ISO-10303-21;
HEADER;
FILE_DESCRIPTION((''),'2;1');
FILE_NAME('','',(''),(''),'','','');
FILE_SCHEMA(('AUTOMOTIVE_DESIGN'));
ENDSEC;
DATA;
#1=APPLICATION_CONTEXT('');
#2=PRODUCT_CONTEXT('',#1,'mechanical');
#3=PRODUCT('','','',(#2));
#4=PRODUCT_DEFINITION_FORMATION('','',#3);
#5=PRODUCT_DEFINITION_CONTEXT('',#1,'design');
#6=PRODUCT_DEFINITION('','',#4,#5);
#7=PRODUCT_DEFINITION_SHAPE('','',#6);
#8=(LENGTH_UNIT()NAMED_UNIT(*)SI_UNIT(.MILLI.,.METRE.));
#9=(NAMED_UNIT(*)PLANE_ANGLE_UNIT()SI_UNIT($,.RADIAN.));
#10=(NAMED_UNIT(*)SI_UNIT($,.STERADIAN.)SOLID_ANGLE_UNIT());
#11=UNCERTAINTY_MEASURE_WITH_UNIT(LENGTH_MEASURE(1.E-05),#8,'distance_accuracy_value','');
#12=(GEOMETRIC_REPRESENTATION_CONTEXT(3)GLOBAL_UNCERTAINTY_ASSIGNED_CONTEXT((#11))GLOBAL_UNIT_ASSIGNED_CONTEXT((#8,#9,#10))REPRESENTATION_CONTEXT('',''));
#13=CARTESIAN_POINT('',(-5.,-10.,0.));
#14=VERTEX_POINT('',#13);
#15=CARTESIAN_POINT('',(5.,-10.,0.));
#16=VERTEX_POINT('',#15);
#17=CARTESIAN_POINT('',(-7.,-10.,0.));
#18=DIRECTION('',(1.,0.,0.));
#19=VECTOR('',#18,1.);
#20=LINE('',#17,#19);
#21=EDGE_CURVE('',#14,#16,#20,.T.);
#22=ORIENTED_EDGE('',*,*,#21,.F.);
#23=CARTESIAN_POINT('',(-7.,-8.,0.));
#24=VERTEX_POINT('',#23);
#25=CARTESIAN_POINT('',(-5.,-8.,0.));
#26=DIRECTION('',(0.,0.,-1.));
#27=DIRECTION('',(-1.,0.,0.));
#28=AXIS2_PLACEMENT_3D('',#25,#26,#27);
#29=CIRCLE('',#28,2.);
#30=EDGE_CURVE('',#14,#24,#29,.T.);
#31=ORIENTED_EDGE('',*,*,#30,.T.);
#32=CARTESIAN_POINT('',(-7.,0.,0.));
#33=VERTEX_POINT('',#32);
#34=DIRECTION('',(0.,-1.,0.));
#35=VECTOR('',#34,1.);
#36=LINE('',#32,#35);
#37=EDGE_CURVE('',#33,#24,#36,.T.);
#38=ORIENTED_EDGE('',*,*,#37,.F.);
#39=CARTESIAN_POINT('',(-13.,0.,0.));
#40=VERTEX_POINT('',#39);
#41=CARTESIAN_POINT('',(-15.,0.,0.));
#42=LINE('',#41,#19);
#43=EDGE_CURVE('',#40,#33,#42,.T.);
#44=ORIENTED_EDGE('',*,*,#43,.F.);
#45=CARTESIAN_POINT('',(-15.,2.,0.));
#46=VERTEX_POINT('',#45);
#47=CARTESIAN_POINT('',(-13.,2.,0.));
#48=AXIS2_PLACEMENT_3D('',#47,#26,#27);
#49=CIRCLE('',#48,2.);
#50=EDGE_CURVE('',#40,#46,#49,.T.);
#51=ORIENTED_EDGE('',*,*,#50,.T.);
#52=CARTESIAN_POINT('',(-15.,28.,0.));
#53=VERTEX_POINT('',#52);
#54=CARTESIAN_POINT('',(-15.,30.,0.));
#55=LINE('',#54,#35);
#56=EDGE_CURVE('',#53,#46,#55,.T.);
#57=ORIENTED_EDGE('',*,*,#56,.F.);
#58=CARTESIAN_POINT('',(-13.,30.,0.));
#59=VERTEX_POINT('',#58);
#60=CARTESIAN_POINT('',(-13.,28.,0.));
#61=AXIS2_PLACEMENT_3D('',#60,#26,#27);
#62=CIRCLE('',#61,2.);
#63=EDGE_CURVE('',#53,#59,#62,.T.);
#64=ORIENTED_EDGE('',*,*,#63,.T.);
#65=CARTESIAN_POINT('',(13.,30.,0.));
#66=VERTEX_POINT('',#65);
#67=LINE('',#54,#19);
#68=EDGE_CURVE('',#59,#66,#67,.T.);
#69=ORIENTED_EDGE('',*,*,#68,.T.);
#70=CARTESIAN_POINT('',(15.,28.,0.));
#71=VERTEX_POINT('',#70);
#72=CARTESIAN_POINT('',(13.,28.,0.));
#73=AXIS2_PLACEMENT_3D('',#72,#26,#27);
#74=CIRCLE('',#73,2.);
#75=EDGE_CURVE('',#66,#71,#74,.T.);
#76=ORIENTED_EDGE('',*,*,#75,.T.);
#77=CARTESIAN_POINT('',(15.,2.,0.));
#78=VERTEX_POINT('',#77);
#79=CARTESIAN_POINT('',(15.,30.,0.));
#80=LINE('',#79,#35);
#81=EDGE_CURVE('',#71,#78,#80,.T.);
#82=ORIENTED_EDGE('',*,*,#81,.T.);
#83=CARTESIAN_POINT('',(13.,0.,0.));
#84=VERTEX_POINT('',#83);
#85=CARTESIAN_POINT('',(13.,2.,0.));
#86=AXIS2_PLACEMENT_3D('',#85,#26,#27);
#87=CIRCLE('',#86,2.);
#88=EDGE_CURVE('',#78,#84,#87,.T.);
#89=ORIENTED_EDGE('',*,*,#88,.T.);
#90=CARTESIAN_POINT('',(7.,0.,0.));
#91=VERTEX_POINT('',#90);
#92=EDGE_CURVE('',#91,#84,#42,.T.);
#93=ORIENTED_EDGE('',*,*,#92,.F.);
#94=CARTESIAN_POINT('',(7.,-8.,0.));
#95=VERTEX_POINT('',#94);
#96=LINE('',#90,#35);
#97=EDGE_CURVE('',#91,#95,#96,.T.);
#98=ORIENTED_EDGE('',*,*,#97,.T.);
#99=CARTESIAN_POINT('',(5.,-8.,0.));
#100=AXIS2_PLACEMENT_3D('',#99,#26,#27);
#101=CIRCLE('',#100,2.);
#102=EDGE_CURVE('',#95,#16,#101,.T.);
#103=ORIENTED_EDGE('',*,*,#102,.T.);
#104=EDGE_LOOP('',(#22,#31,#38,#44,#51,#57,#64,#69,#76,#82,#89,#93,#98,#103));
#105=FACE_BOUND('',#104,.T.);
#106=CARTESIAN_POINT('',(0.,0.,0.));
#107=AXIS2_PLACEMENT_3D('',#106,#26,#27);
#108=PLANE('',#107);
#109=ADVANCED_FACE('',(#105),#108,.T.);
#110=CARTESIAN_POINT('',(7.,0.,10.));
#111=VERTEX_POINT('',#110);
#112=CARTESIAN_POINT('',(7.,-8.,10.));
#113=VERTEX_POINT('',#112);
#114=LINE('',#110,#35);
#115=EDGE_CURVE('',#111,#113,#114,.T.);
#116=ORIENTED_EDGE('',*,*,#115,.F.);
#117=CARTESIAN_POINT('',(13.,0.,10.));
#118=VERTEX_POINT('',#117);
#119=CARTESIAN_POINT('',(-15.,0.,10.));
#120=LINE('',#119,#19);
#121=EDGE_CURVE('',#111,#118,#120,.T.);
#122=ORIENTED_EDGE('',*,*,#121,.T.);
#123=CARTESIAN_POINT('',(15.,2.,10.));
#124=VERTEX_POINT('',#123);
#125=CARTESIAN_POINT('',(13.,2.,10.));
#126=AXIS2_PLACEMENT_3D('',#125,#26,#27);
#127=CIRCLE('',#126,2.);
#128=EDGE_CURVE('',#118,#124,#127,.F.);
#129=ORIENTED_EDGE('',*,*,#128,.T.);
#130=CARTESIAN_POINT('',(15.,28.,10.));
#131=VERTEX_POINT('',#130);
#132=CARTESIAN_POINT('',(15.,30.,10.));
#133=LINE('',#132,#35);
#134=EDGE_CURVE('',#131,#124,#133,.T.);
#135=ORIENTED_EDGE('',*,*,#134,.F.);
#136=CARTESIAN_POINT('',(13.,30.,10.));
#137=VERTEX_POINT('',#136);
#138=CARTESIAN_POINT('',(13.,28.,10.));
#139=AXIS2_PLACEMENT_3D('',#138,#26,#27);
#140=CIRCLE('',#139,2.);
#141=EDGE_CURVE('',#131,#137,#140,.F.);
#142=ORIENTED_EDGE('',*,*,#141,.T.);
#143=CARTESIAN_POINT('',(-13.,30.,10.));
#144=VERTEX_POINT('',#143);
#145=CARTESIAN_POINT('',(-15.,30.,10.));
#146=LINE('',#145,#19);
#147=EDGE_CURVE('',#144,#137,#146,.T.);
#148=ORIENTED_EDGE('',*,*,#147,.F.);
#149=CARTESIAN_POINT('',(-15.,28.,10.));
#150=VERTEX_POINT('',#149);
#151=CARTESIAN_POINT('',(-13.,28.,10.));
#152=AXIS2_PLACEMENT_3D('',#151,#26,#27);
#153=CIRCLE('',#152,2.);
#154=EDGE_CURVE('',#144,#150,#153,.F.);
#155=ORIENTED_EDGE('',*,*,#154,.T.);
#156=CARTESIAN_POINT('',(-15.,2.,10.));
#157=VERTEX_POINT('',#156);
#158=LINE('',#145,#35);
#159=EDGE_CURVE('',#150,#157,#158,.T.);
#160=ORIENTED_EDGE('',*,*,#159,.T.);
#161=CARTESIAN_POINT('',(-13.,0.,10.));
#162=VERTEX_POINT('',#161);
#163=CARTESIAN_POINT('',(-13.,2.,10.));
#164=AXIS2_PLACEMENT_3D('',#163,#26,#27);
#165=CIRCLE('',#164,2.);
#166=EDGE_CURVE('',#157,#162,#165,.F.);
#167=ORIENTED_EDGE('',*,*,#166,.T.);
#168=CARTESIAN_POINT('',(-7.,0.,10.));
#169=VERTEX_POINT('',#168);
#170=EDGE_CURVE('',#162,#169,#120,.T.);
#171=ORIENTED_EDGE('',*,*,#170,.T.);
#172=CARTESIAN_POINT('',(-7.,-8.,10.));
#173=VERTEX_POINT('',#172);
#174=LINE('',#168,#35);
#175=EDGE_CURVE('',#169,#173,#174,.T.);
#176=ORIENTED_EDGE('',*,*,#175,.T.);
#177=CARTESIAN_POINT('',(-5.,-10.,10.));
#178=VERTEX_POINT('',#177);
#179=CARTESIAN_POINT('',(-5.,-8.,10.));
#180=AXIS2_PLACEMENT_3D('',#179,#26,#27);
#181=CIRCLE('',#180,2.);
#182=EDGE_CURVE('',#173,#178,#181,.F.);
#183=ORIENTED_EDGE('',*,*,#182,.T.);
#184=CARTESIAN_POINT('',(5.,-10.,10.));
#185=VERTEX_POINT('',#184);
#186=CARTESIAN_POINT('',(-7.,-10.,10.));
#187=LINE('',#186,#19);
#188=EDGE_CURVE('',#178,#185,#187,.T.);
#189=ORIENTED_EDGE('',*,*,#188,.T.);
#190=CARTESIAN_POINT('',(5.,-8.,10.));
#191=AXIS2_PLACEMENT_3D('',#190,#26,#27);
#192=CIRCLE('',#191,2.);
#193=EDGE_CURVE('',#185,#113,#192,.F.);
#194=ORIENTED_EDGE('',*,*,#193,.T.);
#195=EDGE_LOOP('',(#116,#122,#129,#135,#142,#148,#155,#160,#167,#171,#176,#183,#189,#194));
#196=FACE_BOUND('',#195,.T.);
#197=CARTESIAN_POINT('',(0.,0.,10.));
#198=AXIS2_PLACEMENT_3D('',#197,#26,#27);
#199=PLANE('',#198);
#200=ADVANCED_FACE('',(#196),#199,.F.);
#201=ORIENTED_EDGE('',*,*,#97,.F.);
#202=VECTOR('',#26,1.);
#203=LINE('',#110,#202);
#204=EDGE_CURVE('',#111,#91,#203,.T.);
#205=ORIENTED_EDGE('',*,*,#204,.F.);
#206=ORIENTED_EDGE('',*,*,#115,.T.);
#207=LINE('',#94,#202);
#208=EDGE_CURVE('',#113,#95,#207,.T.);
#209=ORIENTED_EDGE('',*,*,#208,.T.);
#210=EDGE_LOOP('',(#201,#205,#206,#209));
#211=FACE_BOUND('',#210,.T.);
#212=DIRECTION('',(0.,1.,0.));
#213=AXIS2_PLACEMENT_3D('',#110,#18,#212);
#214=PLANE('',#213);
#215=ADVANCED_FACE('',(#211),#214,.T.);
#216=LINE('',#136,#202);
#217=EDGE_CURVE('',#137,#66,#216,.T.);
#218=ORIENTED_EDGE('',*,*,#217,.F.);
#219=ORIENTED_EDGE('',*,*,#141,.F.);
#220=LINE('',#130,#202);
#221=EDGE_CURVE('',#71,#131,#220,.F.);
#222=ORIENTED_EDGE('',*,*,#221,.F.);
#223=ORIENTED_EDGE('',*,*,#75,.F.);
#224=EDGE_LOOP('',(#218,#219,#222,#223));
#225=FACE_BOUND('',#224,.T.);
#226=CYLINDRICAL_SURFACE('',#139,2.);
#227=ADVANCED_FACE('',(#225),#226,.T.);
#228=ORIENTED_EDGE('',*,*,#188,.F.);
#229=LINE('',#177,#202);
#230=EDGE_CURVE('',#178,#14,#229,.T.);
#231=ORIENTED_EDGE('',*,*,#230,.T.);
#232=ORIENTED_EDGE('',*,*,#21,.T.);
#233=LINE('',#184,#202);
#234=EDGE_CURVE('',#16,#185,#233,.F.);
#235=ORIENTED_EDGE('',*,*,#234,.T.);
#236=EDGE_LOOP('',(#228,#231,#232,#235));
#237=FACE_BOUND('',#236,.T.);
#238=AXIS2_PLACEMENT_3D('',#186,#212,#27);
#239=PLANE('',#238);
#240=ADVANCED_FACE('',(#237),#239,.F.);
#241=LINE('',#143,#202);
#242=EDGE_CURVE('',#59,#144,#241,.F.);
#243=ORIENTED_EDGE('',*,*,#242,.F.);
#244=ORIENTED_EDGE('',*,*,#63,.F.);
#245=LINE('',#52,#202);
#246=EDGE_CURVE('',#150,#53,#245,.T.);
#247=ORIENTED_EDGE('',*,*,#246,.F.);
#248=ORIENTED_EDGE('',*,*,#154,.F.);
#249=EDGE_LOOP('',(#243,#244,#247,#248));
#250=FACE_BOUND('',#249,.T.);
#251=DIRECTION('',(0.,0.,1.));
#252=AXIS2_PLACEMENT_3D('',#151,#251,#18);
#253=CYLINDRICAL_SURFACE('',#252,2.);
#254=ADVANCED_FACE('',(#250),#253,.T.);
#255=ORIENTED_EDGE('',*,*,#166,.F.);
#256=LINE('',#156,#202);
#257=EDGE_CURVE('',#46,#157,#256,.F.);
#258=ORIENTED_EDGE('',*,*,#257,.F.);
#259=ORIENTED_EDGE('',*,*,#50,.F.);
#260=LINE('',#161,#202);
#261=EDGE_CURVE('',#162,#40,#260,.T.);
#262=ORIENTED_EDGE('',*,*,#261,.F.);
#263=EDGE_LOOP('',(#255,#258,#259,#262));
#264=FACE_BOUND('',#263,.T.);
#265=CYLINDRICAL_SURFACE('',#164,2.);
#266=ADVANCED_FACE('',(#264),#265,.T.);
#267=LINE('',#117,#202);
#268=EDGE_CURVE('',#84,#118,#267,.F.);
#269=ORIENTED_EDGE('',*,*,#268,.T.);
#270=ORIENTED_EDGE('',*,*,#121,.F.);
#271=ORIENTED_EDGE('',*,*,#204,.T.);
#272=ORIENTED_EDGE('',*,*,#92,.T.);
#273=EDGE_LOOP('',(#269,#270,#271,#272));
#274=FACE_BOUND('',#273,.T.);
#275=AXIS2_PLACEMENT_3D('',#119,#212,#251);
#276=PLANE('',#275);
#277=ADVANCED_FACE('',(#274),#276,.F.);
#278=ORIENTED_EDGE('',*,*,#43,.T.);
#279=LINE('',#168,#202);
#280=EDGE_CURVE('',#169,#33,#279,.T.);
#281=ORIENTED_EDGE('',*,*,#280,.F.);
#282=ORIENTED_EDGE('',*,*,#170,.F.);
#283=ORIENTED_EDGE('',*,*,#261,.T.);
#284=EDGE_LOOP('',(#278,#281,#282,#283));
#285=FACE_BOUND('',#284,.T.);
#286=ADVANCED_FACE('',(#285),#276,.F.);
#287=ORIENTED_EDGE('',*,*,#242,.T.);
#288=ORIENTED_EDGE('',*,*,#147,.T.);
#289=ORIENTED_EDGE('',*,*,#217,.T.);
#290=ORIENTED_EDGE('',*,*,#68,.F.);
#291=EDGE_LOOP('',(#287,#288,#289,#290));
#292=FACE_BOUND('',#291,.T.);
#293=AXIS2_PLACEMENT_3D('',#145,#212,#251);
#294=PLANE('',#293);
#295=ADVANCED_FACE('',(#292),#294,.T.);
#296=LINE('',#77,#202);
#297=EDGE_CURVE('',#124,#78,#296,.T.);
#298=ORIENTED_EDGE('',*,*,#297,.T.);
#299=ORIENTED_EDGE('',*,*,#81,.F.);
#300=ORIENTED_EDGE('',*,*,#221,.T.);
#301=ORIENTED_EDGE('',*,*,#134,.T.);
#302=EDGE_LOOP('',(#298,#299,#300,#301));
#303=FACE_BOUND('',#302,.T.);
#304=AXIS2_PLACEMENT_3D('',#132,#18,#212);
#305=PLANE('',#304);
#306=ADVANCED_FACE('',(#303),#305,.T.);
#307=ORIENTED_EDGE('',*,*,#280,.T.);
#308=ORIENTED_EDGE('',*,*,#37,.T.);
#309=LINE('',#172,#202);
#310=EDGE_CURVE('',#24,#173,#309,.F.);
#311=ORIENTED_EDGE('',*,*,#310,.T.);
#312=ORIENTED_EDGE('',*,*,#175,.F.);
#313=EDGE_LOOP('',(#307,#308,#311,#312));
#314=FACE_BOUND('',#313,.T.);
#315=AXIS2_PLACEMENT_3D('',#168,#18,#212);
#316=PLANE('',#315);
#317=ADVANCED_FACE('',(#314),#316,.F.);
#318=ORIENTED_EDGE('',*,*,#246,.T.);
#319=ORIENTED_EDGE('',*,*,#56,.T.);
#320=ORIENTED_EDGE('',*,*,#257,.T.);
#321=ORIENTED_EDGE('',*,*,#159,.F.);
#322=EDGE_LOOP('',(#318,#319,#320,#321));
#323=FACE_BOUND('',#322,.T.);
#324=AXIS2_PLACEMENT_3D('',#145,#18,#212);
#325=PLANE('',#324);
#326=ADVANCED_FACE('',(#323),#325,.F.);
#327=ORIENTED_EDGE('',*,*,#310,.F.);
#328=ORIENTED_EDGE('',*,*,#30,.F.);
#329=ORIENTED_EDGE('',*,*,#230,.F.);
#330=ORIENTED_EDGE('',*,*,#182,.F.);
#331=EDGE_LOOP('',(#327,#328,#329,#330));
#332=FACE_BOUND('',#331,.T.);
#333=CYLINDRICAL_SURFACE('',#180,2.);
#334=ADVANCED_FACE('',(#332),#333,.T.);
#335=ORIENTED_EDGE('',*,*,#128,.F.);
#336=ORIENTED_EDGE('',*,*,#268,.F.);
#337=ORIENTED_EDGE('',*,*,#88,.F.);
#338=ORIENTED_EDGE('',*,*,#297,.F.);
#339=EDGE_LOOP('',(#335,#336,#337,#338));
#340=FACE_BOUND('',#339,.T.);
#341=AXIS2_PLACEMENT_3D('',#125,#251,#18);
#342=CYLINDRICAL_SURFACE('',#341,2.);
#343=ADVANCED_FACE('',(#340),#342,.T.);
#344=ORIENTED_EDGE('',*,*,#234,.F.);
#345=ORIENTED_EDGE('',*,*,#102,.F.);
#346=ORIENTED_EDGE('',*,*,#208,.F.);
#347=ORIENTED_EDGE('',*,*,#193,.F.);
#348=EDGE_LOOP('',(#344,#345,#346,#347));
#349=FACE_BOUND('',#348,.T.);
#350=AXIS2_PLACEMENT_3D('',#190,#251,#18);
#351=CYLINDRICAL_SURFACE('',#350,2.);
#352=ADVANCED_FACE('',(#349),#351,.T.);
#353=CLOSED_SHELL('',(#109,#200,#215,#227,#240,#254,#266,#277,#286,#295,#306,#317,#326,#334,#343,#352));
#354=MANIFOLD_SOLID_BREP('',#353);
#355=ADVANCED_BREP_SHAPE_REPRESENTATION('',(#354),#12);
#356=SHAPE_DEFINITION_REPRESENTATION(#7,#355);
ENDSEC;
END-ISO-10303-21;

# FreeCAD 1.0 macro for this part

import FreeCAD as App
import Part
import Sketcher


def edges_at(feature, points):
    """Names of the edges that pass closest to the given points."""
    edges = feature.Shape.Edges
    near = lambda p: min(range(len(edges)), key=lambda i: edges[i].distToShape(Part.Vertex(*p))[0])
    return sorted({f"Edge{near(p) + 1}" for p in points})


def add_polygon(sketch, points):
    """Adds a closed chain of lines whose ends are joined by coincident constraints."""
    first, n = sketch.GeometryCount, len(points)
    for a, b in zip(points, points[1:] + points[:1]):
        sketch.addGeometry(Part.LineSegment(App.Vector(*a, 0), App.Vector(*b, 0)), False)
    for i in range(n):
        sketch.addConstraint(Sketcher.Constraint("Coincident", first + i, 2, first + (i + 1) % n, 1))

doc = App.newDocument("Part")
body = doc.addObject("PartDesign::Body", "Body")

sketch1 = body.newObject("Sketcher::SketchObject", "Sketch")
sketch1.AttachmentSupport = (doc.getObject("XY_Plane"), [""])
sketch1.MapMode = "FlatFace"
add_polygon(sketch1, [(-7, 0), (-7, -10), (7, -10), (7, 0), (15, 0), (15, 30), (-15, 30), (-15, 0)])
sketch1.addConstraint(Sketcher.Constraint("Vertical", 0))
sketch1.addConstraint(Sketcher.Constraint("Horizontal", 1))
sketch1.addConstraint(Sketcher.Constraint("Vertical", 2))
sketch1.addConstraint(Sketcher.Constraint("Horizontal", 3))
sketch1.addConstraint(Sketcher.Constraint("Vertical", 4))
sketch1.addConstraint(Sketcher.Constraint("Horizontal", 5))
sketch1.addConstraint(Sketcher.Constraint("Vertical", 6))
sketch1.addConstraint(Sketcher.Constraint("Horizontal", 7))
sketch1.addConstraint(Sketcher.Constraint("Symmetric", 3, 2, 6, 2, -1, 1))
sketch1.addConstraint(Sketcher.Constraint("Symmetric", 2, 2, 7, 2, -2))
sketch1.addConstraint(Sketcher.Constraint("Equal", 5, 4))
sketch1.addConstraint(Sketcher.Constraint("DistanceX", 1, 1, 1, 2, 14.0))
sketch1.addConstraint(Sketcher.Constraint("DistanceX", 3, 1, 3, 2, 8.0))
sketch1.addConstraint(Sketcher.Constraint("DistanceY", 0, 2, 0, 1, 10.0))
pad1 = body.newObject("PartDesign::Pad", "Pad")
pad1.Profile = sketch1
pad1.Length = 10
doc.recompute()

fillet = body.newObject("PartDesign::Fillet", "Fillet")
fillet.Base = (pad1, edges_at(pad1, [
    (7, -10, 5),
    (-7, -10, 5),
    (-15, 0, 5),
    (-15, 30, 5),
    (15, 30, 5),
    (15, 0, 5),
]))
fillet.Radius = 2

doc.recompute()
